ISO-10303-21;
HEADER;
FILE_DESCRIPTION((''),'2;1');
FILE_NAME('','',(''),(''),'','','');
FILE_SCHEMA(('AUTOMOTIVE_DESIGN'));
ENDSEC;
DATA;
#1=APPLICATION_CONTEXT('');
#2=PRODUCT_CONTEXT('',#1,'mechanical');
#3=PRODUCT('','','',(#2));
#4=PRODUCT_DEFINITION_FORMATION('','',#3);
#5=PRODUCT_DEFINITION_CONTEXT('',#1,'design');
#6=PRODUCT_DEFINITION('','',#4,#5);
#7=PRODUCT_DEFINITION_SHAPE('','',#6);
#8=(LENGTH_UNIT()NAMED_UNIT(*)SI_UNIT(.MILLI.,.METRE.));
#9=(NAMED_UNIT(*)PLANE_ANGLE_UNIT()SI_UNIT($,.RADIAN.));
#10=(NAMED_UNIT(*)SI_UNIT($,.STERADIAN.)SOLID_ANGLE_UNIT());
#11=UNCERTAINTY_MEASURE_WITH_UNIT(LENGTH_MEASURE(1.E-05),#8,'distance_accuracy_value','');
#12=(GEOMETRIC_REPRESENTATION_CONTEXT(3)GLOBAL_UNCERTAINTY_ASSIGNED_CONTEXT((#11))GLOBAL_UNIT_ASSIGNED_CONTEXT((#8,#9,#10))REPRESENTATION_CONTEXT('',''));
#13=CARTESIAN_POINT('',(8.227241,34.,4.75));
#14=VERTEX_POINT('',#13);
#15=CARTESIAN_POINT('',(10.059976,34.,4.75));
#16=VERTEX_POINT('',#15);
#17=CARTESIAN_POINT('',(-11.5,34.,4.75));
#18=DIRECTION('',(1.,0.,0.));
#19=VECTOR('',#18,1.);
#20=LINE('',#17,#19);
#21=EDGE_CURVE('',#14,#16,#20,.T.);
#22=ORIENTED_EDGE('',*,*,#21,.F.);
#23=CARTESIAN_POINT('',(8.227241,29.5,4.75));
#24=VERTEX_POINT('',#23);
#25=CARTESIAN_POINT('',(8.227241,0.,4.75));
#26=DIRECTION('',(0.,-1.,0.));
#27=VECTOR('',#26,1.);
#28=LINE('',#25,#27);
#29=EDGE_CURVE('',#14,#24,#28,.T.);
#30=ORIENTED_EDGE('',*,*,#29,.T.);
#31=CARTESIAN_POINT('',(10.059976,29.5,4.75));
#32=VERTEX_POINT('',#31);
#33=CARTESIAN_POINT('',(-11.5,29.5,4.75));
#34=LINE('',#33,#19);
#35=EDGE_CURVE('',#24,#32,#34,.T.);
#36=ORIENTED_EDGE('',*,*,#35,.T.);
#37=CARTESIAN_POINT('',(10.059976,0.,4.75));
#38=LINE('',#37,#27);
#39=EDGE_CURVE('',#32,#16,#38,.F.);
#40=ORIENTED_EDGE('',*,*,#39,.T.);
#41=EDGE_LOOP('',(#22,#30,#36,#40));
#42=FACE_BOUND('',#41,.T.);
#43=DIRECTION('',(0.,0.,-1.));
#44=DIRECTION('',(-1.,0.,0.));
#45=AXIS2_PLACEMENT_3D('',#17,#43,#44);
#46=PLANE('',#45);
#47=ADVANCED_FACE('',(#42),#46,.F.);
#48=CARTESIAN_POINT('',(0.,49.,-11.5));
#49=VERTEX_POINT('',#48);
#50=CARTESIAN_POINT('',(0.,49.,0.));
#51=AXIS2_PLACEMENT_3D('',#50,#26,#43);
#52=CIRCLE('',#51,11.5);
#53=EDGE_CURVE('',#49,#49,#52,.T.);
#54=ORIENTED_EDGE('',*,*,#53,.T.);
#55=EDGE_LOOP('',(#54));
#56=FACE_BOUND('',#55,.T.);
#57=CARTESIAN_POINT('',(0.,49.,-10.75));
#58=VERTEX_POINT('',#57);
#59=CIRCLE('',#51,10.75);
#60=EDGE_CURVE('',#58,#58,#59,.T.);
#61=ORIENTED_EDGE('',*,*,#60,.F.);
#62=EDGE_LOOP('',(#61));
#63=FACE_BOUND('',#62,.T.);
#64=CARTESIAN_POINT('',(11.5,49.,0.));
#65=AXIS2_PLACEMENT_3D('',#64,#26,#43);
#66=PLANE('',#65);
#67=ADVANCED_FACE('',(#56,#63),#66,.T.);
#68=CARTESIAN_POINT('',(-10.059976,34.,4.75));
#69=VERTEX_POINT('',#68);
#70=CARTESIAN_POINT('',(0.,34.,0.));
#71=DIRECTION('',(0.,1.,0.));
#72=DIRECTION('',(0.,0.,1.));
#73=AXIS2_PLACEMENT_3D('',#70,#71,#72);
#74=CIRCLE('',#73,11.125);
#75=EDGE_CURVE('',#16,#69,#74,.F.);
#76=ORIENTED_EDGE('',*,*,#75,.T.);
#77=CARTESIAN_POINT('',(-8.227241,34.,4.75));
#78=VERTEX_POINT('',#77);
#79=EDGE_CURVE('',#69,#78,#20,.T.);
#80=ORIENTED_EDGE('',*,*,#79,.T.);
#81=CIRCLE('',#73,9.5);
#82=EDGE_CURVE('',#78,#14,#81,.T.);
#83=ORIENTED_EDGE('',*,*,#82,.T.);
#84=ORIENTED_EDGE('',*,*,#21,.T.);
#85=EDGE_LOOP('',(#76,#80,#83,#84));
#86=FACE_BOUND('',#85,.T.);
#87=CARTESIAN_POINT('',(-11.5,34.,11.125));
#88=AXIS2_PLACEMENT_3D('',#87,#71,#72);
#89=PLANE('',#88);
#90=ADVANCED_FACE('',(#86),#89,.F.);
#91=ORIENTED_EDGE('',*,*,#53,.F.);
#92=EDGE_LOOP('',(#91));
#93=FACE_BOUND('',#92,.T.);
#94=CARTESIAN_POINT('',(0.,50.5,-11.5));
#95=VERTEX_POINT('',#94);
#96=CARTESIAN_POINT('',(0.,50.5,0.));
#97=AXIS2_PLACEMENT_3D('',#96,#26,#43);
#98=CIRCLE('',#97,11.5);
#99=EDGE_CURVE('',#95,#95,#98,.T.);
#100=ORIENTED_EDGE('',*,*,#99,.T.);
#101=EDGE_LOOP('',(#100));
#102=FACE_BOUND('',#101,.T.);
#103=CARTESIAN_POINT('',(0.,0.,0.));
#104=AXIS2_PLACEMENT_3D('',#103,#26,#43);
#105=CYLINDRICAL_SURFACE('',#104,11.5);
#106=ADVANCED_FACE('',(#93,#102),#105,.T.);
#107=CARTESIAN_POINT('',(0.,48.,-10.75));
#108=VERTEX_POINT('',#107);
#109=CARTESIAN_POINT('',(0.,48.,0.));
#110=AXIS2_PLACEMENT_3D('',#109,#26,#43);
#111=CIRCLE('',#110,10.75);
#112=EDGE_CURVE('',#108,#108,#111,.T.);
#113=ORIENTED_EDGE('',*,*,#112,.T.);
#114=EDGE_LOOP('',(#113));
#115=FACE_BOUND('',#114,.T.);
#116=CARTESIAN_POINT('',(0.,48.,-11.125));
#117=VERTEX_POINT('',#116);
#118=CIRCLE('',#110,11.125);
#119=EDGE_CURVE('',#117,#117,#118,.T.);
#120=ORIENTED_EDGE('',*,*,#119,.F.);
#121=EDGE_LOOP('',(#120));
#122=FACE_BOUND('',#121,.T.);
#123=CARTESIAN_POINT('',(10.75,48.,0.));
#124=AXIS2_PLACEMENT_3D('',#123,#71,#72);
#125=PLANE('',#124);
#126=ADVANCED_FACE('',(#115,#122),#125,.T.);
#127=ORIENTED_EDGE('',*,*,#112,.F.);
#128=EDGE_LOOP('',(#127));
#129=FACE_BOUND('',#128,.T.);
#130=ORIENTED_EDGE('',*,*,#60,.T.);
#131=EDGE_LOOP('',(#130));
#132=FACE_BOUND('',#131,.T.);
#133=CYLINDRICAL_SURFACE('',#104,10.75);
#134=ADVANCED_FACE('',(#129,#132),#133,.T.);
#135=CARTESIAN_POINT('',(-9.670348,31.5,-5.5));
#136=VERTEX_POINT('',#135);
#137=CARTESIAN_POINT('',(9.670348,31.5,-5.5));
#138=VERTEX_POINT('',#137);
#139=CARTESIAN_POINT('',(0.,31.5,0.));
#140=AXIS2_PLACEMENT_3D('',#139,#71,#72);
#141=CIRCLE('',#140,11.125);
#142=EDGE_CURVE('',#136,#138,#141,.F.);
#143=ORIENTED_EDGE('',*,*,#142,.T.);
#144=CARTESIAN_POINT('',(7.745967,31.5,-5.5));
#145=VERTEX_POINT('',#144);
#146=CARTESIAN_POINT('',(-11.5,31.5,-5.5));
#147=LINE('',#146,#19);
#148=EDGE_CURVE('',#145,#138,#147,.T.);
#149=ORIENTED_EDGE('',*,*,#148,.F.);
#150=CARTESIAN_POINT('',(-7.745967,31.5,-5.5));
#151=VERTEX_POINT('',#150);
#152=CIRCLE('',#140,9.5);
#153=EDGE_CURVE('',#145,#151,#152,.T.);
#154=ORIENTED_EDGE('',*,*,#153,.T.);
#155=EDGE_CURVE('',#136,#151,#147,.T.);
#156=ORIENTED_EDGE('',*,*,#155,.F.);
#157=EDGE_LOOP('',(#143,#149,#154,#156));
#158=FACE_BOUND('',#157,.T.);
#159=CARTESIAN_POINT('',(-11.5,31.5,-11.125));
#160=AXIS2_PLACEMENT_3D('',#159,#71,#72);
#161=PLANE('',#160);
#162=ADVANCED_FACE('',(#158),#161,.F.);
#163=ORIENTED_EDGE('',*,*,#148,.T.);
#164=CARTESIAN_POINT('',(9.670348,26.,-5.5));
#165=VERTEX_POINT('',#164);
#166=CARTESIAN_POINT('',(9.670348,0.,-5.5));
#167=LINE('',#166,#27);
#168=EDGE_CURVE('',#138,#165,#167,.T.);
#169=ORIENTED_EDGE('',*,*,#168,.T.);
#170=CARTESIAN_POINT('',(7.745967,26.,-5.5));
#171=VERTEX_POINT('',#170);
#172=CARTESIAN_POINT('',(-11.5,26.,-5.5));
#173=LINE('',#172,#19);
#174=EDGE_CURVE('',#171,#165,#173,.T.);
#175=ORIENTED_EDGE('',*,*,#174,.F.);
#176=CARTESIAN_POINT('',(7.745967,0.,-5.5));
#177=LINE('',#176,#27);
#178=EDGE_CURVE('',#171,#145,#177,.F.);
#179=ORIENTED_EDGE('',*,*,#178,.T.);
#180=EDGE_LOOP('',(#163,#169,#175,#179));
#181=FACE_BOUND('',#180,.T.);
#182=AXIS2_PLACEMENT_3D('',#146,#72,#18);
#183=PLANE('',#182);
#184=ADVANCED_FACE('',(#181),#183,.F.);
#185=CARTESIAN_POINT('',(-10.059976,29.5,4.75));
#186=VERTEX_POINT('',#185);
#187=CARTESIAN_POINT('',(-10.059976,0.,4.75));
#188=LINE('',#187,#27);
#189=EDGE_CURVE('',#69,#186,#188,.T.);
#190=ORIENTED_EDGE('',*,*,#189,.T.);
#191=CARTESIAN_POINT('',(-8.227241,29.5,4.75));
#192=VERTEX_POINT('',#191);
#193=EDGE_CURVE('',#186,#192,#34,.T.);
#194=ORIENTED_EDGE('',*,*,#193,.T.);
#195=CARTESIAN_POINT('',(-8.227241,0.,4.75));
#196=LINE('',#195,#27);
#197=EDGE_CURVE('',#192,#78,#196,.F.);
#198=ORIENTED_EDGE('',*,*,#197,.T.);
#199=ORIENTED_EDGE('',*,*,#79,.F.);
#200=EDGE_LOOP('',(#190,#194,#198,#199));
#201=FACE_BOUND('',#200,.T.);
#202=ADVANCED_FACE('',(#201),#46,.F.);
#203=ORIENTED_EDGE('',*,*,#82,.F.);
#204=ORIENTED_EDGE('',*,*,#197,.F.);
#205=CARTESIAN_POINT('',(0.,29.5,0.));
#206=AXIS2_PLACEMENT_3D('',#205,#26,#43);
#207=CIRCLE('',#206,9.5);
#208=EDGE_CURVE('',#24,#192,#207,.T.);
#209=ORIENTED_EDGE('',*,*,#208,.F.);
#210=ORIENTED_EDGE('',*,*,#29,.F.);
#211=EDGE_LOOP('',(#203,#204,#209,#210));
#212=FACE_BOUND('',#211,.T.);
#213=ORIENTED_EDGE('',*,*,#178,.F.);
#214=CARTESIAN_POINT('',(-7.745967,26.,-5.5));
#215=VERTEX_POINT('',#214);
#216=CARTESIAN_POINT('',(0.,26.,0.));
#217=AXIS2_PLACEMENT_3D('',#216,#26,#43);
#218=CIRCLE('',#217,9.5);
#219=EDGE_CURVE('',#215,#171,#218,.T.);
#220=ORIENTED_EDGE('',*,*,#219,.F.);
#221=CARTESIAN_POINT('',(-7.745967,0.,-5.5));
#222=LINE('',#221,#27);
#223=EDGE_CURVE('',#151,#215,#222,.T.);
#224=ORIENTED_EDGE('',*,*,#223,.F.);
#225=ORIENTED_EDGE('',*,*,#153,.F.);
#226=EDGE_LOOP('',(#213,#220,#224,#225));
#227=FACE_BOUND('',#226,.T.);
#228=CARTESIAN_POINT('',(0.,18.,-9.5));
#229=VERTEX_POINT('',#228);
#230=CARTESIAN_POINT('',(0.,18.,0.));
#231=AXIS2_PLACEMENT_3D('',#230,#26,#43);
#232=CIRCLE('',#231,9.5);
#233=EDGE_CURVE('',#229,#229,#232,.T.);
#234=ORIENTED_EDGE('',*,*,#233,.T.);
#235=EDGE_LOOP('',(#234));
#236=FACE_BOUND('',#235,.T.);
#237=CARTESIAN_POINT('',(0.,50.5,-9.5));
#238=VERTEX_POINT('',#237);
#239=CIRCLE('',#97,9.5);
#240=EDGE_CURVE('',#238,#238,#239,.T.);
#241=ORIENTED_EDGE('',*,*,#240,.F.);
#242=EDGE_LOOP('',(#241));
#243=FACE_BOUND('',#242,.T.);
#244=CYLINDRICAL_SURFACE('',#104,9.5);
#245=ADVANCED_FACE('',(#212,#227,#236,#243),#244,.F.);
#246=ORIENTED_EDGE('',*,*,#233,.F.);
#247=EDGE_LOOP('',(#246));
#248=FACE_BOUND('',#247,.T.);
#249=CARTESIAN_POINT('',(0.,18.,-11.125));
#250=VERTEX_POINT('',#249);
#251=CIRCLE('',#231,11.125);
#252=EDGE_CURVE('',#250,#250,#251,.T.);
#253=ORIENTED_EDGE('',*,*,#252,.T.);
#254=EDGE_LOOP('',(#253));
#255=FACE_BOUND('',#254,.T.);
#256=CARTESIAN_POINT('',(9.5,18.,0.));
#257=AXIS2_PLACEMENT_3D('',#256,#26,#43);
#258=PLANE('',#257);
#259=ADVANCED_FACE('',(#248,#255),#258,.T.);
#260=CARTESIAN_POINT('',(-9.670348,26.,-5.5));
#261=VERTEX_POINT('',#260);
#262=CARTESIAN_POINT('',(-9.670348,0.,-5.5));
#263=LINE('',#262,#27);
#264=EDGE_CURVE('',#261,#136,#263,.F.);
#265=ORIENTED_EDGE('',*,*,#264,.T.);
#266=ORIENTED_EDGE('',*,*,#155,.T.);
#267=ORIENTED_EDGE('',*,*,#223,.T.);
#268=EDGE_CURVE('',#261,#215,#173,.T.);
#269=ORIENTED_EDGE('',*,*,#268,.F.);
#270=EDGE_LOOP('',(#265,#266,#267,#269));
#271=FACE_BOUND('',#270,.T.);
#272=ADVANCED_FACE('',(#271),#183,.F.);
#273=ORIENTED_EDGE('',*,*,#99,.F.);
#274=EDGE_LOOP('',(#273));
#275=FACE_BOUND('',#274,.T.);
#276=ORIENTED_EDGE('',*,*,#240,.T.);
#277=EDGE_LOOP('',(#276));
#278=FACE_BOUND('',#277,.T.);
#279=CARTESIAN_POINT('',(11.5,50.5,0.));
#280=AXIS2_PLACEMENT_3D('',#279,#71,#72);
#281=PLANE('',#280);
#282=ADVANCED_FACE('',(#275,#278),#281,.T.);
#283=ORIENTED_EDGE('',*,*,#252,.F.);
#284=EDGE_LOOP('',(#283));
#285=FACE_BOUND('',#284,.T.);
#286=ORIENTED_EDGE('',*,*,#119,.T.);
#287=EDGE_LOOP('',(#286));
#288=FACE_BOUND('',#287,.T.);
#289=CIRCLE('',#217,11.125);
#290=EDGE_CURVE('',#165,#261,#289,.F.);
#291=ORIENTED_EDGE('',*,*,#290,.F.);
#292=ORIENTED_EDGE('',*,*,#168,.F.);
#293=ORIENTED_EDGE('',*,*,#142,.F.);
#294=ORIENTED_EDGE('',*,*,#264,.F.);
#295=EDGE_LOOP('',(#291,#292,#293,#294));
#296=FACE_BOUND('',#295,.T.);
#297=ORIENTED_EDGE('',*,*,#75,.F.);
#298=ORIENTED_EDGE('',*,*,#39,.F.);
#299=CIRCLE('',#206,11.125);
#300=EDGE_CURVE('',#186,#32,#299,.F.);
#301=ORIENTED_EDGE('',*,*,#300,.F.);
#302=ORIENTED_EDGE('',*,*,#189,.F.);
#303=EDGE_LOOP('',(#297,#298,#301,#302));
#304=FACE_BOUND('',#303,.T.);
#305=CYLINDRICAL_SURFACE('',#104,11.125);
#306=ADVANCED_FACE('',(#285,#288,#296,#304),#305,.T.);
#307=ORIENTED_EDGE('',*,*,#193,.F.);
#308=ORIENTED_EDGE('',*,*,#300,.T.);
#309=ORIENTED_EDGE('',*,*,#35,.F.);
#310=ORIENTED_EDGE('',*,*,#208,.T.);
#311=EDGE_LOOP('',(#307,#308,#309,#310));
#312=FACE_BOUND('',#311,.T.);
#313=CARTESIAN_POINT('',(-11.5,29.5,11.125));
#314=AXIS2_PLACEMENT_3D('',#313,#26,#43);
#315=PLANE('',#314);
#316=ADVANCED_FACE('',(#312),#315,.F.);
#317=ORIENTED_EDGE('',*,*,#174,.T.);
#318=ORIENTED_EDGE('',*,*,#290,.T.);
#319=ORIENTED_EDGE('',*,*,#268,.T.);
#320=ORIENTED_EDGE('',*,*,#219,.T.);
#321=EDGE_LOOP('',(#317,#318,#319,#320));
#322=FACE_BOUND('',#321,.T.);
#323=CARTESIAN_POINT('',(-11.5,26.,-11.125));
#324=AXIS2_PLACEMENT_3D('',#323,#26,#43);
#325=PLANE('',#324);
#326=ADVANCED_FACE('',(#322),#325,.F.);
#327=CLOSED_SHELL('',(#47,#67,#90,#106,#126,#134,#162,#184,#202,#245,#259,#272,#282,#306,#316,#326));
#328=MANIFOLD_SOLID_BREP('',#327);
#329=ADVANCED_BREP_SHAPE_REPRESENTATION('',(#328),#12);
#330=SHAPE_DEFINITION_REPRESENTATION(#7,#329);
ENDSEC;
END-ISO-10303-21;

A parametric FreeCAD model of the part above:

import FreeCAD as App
import Part
import Sketcher

V = App.Vector

doc = App.newDocument("Part")
body = doc.addObject("PartDesign::Body", "Body")

# Sketch on XY plane
sketch1 = body.newObject("Sketcher::SketchObject", "Sketch")
sketch1.AttachmentSupport = (doc.getObject("XY_Plane"), [""])
sketch1.MapMode = "FlatFace"
sketch1.addGeometry(Part.LineSegment(V(10.75, 48, 0), V(10.75, 49, 0)), False)
sketch1.addGeometry(Part.LineSegment(V(10.75, 49, 0), V(11.5, 49, 0)), False)
sketch1.addGeometry(Part.LineSegment(V(11.5, 49, 0), V(11.5, 50.5, 0)), False)
sketch1.addGeometry(Part.LineSegment(V(11.5, 50.5, 0), V(9.5, 50.5, 0)), False)
sketch1.addGeometry(Part.LineSegment(V(9.5, 50.5, 0), V(9.5, 18, 0)), False)
sketch1.addGeometry(Part.LineSegment(V(9.5, 18, 0), V(11.12, 18, 0)), False)
sketch1.addGeometry(Part.LineSegment(V(11.12, 18, 0), V(11.12, 48, 0)), False)
sketch1.addGeometry(Part.LineSegment(V(11.12, 48, 0), V(10.75, 48, 0)), False)
sketch1.addConstraint(Sketcher.Constraint("Coincident", 0, 2, 1, 1))
sketch1.addConstraint(Sketcher.Constraint("Coincident", 1, 2, 2, 1))
sketch1.addConstraint(Sketcher.Constraint("Coincident", 2, 2, 3, 1))
sketch1.addConstraint(Sketcher.Constraint("Coincident", 3, 2, 4, 1))
sketch1.addConstraint(Sketcher.Constraint("Coincident", 4, 2, 5, 1))
sketch1.addConstraint(Sketcher.Constraint("Coincident", 5, 2, 6, 1))
sketch1.addConstraint(Sketcher.Constraint("Coincident", 6, 2, 7, 1))
sketch1.addConstraint(Sketcher.Constraint("Coincident", 7, 2, 0, 1))
sketch1.addConstraint(Sketcher.Constraint("Vertical", 0))
sketch1.addConstraint(Sketcher.Constraint("Horizontal", 1))
sketch1.addConstraint(Sketcher.Constraint("Vertical", 2))
sketch1.addConstraint(Sketcher.Constraint("Horizontal", 3))
sketch1.addConstraint(Sketcher.Constraint("Vertical", 4))
sketch1.addConstraint(Sketcher.Constraint("Horizontal", 5))
sketch1.addConstraint(Sketcher.Constraint("Vertical", 6))
sketch1.addConstraint(Sketcher.Constraint("Horizontal", 7))
sketch1.addConstraint(Sketcher.Constraint("DistanceX", 3, 2, 3, 1, 2.0))
sketch1.addConstraint(Sketcher.Constraint("DistanceY", 0, 1, 0, 2, 1.0))
sketch1.addConstraint(Sketcher.Constraint("DistanceY", 6, 1, 6, 2, 30.0))
sketch1.addConstraint(Sketcher.Constraint("DistanceY", 2, 1, 2, 2, 1.5))
sketch1.addConstraint(Sketcher.Constraint("DistanceY", -1, 1, 0, 2, 49.0))
sketch1.addConstraint(Sketcher.Constraint("DistanceX", 1, 1, 1, 2, 0.75))
sketch1.addConstraint(Sketcher.Constraint("DistanceX", -1, 1, 1, 2, 11.5))
sketch1.addConstraint(Sketcher.Constraint("DistanceX", 5, 1, 5, 2, 1.625))
revolution = body.newObject("PartDesign::Revolution", "Revolution")
revolution.Profile = sketch1
revolution.ReferenceAxis = (sketch1, ["V_Axis"])
revolution.Angle = 360

# Sketch on YZ plane
sketch2 = body.newObject("Sketcher::SketchObject", "Sketch001")
sketch2.AttachmentSupport = (doc.getObject("YZ_Plane"), [""])
sketch2.MapMode = "FlatFace"
sketch2.addGeometry(Part.LineSegment(V(34, 11.1, 0), V(29.5, 11.1, 0)), False)
sketch2.addGeometry(Part.LineSegment(V(29.5, 11.1, 0), V(29.5, 4.8, 0)), False)
sketch2.addGeometry(Part.LineSegment(V(29.5, 4.8, 0), V(34, 4.8, 0)), False)
sketch2.addGeometry(Part.LineSegment(V(34, 4.8, 0), V(34, 11.1, 0)), False)
sketch2.addGeometry(Part.LineSegment(V(31.5, -5.5, 0), V(26, -5.5, 0)), False)
sketch2.addGeometry(Part.LineSegment(V(26, -5.5, 0), V(26, -11.1, 0)), False)
sketch2.addGeometry(Part.LineSegment(V(26, -11.1, 0), V(31.5, -11.1, 0)), False)
sketch2.addGeometry(Part.LineSegment(V(31.5, -11.1, 0), V(31.5, -5.5, 0)), False)
sketch2.addConstraint(Sketcher.Constraint("Coincident", 0, 2, 1, 1))
sketch2.addConstraint(Sketcher.Constraint("Coincident", 1, 2, 2, 1))
sketch2.addConstraint(Sketcher.Constraint("Coincident", 2, 2, 3, 1))
sketch2.addConstraint(Sketcher.Constraint("Coincident", 3, 2, 0, 1))
sketch2.addConstraint(Sketcher.Constraint("Coincident", 4, 2, 5, 1))
sketch2.addConstraint(Sketcher.Constraint("Coincident", 5, 2, 6, 1))
sketch2.addConstraint(Sketcher.Constraint("Coincident", 6, 2, 7, 1))
sketch2.addConstraint(Sketcher.Constraint("Coincident", 7, 2, 4, 1))
sketch2.addConstraint(Sketcher.Constraint("Horizontal", 0))
sketch2.addConstraint(Sketcher.Constraint("Vertical", 1))
sketch2.addConstraint(Sketcher.Constraint("Horizontal", 2))
sketch2.addConstraint(Sketcher.Constraint("Vertical", 3))
sketch2.addConstraint(Sketcher.Constraint("Horizontal", 4))
sketch2.addConstraint(Sketcher.Constraint("Vertical", 5))
sketch2.addConstraint(Sketcher.Constraint("Horizontal", 6))
sketch2.addConstraint(Sketcher.Constraint("Vertical", 7))
sketch2.addConstraint(Sketcher.Constraint("DistanceX", 0, 2, 0, 1, 4.5))
sketch2.addConstraint(Sketcher.Constraint("DistanceX", 4, 2, 4, 1, 5.5))
sketch2.addConstraint(Sketcher.Constraint("DistanceX", -1, 1, 2, 2, 34.0))
sketch2.addConstraint(Sketcher.Constraint("DistanceX", -1, 1, 4, 2, 26.0))
sketch2.addConstraint(Sketcher.Constraint("DistanceY", 4, 2, -1, 1, 5.5))
sketch2.addConstraint(Sketcher.Constraint("DistanceY", 1, 2, 1, 1, 6.375))
sketch2.addConstraint(Sketcher.Constraint("DistanceY", 5, 2, 5, 1, 5.625))
sketch2.addConstraint(Sketcher.Constraint("DistanceY", -1, 1, 1, 2, 4.75))
pocket1 = body.newObject("PartDesign::Pocket", "Pocket")
pocket1.Profile = sketch2
pocket1.Type = "ThroughAll"
pocket1.Midplane = True

doc.recompute()
